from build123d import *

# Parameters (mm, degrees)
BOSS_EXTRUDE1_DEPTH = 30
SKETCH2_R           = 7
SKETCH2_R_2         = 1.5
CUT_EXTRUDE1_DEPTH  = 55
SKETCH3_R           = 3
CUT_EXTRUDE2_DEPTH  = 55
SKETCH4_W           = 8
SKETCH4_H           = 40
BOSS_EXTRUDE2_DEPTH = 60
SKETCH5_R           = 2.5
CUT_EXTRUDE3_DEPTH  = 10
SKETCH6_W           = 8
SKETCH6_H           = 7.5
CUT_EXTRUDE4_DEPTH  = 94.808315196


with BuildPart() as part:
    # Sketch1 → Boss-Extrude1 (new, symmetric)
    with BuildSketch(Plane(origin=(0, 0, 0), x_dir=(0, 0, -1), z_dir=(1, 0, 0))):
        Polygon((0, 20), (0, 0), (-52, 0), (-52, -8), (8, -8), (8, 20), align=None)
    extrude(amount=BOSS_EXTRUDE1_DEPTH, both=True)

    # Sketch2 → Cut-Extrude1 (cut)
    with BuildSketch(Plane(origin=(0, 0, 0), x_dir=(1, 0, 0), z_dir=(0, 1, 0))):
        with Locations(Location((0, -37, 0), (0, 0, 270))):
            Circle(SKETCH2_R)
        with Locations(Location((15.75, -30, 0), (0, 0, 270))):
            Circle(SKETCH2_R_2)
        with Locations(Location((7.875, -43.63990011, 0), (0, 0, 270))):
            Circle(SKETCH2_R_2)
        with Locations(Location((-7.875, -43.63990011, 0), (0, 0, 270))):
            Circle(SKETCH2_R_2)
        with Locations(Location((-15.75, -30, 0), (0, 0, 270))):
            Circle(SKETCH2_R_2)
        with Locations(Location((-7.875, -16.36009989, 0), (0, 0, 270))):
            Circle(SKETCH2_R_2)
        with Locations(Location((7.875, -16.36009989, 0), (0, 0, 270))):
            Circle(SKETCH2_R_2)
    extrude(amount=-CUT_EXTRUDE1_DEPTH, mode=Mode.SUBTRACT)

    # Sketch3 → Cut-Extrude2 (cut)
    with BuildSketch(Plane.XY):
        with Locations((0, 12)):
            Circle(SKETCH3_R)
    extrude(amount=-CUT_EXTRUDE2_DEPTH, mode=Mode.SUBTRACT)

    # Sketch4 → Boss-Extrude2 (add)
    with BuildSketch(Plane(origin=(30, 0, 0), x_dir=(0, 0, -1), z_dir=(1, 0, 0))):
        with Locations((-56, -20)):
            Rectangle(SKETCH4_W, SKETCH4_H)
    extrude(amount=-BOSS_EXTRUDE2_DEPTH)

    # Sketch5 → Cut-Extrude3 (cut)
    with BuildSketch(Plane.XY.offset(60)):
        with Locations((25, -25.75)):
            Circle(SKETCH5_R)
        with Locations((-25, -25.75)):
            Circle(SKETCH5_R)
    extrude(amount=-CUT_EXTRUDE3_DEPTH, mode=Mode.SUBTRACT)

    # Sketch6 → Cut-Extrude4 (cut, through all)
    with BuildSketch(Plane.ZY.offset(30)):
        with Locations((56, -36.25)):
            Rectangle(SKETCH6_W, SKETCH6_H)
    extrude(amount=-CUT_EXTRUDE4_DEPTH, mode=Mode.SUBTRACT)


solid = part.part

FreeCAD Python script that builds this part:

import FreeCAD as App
import Part
import Sketcher

V = App.Vector

doc = App.newDocument("Part")
body = doc.addObject("PartDesign::Body", "Body")

# Sketch on YZ plane
sketch1 = doc.addObject("Sketcher::SketchObject", "Sketch")
body.addObject(sketch1)
sketch1.AttachmentSupport = (doc.YZ_Plane, [""])
sketch1.MapMode = "FlatFace"
sketch1.addGeometry([
    Part.LineSegment(V(20, 0, 0), V(0, 0, 0)),  # 0
    Part.LineSegment(V(0, 0, 0), V(0, 52, 0)),  # 1
    Part.LineSegment(V(0, 52, 0), V(-8, 52, 0)),  # 2
    Part.LineSegment(V(-8, 52, 0), V(-8, -8, 0)),  # 3
    Part.LineSegment(V(-8, -8, 0), V(20, -8, 0)),  # 4
    Part.LineSegment(V(20, -8, 0), V(20, 0, 0)),  # 5
], False)
sketch1.addConstraint([
    Sketcher.Constraint("Coincident", 0, 2, 1, 1),
    Sketcher.Constraint("Coincident", 1, 2, 2, 1),
    Sketcher.Constraint("Coincident", 2, 2, 3, 1),
    Sketcher.Constraint("Coincident", 3, 2, 4, 1),
    Sketcher.Constraint("Coincident", 4, 2, 5, 1),
    Sketcher.Constraint("Coincident", 5, 2, 0, 1),
    Sketcher.Constraint("Horizontal", 0),
    Sketcher.Constraint("Vertical", 1),
    Sketcher.Constraint("Horizontal", 2),
    Sketcher.Constraint("Vertical", 3),
    Sketcher.Constraint("Horizontal", 4),
    Sketcher.Constraint("Vertical", 5),
    Sketcher.Constraint("Coincident", 0, 2, -1, 1),
    Sketcher.Constraint("Equal", 2, 5),
    Sketcher.Constraint("DistanceX", 0, 2, 0, 1, 20.0),
    Sketcher.Constraint("DistanceX", 2, 2, 2, 1, 8.0),
    Sketcher.Constraint("DistanceY", 1, 1, 1, 2, 52.0),
])
pad1 = doc.addObject("PartDesign::Pad", "Pad")
body.addObject(pad1)
pad1.Profile = sketch1
pad1.Length = 60
pad1.Midplane = True

# Sketch on XZ plane
sketch2 = doc.addObject("Sketcher::SketchObject", "Sketch001")
body.addObject(sketch2)
sketch2.AttachmentSupport = (doc.XZ_Plane, [""])
sketch2.MapMode = "FlatFace"
sketch2.addGeometry([
    Part.Circle(V(0, 37, 0), V(0, 0, 1), 7),  # 0
    Part.Circle(V(15.8, 30, 0), V(0, 0, 1), 1.5),  # 1
    Part.Circle(V(7.9, 43.6, 0), V(0, 0, 1), 1.5),  # 2
    Part.Circle(V(-7.9, 43.6, 0), V(0, 0, 1), 1.5),  # 3
    Part.Circle(V(-15.8, 30, 0), V(0, 0, 1), 1.5),  # 4
    Part.Circle(V(-7.9, 16.4, 0), V(0, 0, 1), 1.5),  # 5
    Part.Circle(V(7.9, 16.4, 0), V(0, 0, 1), 1.5),  # 6
], False)
sketch2.addConstraint([
    Sketcher.Constraint("Equal", 1, 2),
    Sketcher.Constraint("Equal", 2, 3),
    Sketcher.Constraint("Equal", 3, 4),
    Sketcher.Constraint("Equal", 4, 5),
    Sketcher.Constraint("Equal", 5, 6),
    Sketcher.Constraint("Symmetric", 2, 3, 3, 3, -2),
    Sketcher.Constraint("Symmetric", 1, 3, 4, 3, -2),
    Sketcher.Constraint("Symmetric", 5, 3, 6, 3, -2),
    Sketcher.Constraint("PointOnObject", 0, 3, -2),
    Sketcher.Constraint("Vertical", 3, 3, 5, 3),
    Sketcher.Constraint("Diameter", 0, 14.0),
    Sketcher.Constraint("Diameter", 1, 3.0),
    Sketcher.Constraint("DistanceY", -1, 1, 0, 3, 37.0),
    Sketcher.Constraint("DistanceY", -1, 1, 1, 3, 30.0),
    Sketcher.Constraint("DistanceX", 4, 3, 1, 3, 31.5),
    Sketcher.Constraint("DistanceX", 3, 3, 2, 3, 15.75),
    Sketcher.Constraint("DistanceY", -1, 1, 2, 3, 43.6399),
    Sketcher.Constraint("DistanceY", -1, 1, 5, 3, 16.3601),
])
pocket1 = doc.addObject("PartDesign::Pocket", "Pocket")
body.addObject(pocket1)
pocket1.Profile = sketch2
pocket1.Length = 55
pocket1.Reversed = True

# Sketch on XY plane
sketch3 = doc.addObject("Sketcher::SketchObject", "Sketch002")
body.addObject(sketch3)
sketch3.AttachmentSupport = (doc.XY_Plane, [""])
sketch3.MapMode = "FlatFace"
sketch3.addGeometry(Part.Circle(V(0, 12, 0), V(0, 0, 1), 3), False)
sketch3.addConstraint([
    Sketcher.Constraint("PointOnObject", 0, 3, -2),
    Sketcher.Constraint("Diameter", 0, 6.0),
    Sketcher.Constraint("DistanceY", -1, 1, 0, 3, 12.0),
])
pocket2 = doc.addObject("PartDesign::Pocket", "Pocket001")
body.addObject(pocket2)
pocket2.Profile = sketch3
pocket2.Length = 55

# Sketch on YZ plane
sketch4 = doc.addObject("Sketcher::SketchObject", "Sketch003")
body.addObject(sketch4)
sketch4.AttachmentSupport = (doc.YZ_Plane, [""])
sketch4.MapMode = "FlatFace"
sketch4.AttachmentOffset = App.Placement(V(0, 0, 30), App.Rotation())
sketch4.addGeometry([
    Part.LineSegment(V(0, 60, 0), V(-40, 60, 0)),
    Part.LineSegment(V(-40, 60, 0), V(-40, 52, 0)),
    Part.LineSegment(V(-40, 52, 0), V(0, 52, 0)),
    Part.LineSegment(V(0, 52, 0), V(0, 60, 0)),
], False)
sketch4.addConstraint([
    Sketcher.Constraint("Coincident", 0, 2, 1, 1),
    Sketcher.Constraint("Coincident", 1, 2, 2, 1),
    Sketcher.Constraint("Coincident", 2, 2, 3, 1),
    Sketcher.Constraint("Coincident", 3, 2, 0, 1),
    Sketcher.Constraint("Horizontal", 0),
    Sketcher.Constraint("Vertical", 1),
    Sketcher.Constraint("Horizontal", 2),
    Sketcher.Constraint("Vertical", 3),
    Sketcher.Constraint("PointOnObject", 2, 2, -2),
    Sketcher.Constraint("DistanceX", 0, 2, 0, 1, 40.0),
    Sketcher.Constraint("DistanceY", 1, 2, 1, 1, 8.0),
    Sketcher.Constraint("DistanceY", -1, 1, 0, 2, 60.0),
])
pad2 = doc.addObject("PartDesign::Pad", "Pad001")
body.addObject(pad2)
pad2.Profile = sketch4
pad2.Length = 60
pad2.Reversed = True

# Sketch on XY plane
sketch5 = doc.addObject("Sketcher::SketchObject", "Sketch004")
body.addObject(sketch5)
sketch5.AttachmentSupport = (doc.XY_Plane, [""])
sketch5.MapMode = "FlatFace"
sketch5.AttachmentOffset = App.Placement(V(0, 0, 60), App.Rotation())
sketch5.addGeometry([
    Part.Circle(V(25, -25.8, 0), V(0, 0, 1), 2.5),
    Part.Circle(V(-25, -25.8, 0), V(0, 0, 1), 2.5),
], False)
sketch5.addConstraint([
    Sketcher.Constraint("Equal", 0, 1),
    Sketcher.Constraint("Symmetric", 0, 3, 1, 3, -2),
    Sketcher.Constraint("Diameter", 0, 5.0),
    Sketcher.Constraint("DistanceX", -1, 1, 0, 3, 25.0),
    Sketcher.Constraint("DistanceY", 0, 3, -1, 1, 25.75),
])
pocket3 = doc.addObject("PartDesign::Pocket", "Pocket002")
body.addObject(pocket3)
pocket3.Profile = sketch5
pocket3.Length = 10

# Sketch on YZ plane
sketch6 = doc.addObject("Sketcher::SketchObject", "Sketch005")
body.addObject(sketch6)
sketch6.AttachmentSupport = (doc.YZ_Plane, [""])
sketch6.MapMode = "FlatFace"
sketch6.AttachmentOffset = App.Placement(V(0, 0, -30), App.Rotation())
sketch6.addGeometry([
    Part.LineSegment(V(-32, 52, 0), V(-40, 52, 0)),
    Part.LineSegment(V(-40, 52, 0), V(-40, 60, 0)),
    Part.LineSegment(V(-40, 60, 0), V(-32, 60, 0)),
    Part.LineSegment(V(-32, 60, 0), V(-32, 52, 0)),
], False)
sketch6.addConstraint([
    Sketcher.Constraint("Coincident", 0, 2, 1, 1),
    Sketcher.Constraint("Coincident", 1, 2, 2, 1),
    Sketcher.Constraint("Coincident", 2, 2, 3, 1),
    Sketcher.Constraint("Coincident", 3, 2, 0, 1),
    Sketcher.Constraint("Horizontal", 0),
    Sketcher.Constraint("Vertical", 1),
    Sketcher.Constraint("Horizontal", 2),
    Sketcher.Constraint("Vertical", 3),
    Sketcher.Constraint("DistanceY", 1, 1, 1, 2, 8.0),
    Sketcher.Constraint("DistanceX", 0, 2, 0, 1, 7.5),
    Sketcher.Constraint("DistanceX", 0, 2, -1, 1, 40.0),
    Sketcher.Constraint("DistanceY", -1, 1, 0, 2, 52.0),
])
pocket4 = doc.addObject("PartDesign::Pocket", "Pocket003")
body.addObject(pocket4)
pocket4.Profile = sketch6
pocket4.Type = "ThroughAll"
pocket4.Reversed = True

doc.recompute()
